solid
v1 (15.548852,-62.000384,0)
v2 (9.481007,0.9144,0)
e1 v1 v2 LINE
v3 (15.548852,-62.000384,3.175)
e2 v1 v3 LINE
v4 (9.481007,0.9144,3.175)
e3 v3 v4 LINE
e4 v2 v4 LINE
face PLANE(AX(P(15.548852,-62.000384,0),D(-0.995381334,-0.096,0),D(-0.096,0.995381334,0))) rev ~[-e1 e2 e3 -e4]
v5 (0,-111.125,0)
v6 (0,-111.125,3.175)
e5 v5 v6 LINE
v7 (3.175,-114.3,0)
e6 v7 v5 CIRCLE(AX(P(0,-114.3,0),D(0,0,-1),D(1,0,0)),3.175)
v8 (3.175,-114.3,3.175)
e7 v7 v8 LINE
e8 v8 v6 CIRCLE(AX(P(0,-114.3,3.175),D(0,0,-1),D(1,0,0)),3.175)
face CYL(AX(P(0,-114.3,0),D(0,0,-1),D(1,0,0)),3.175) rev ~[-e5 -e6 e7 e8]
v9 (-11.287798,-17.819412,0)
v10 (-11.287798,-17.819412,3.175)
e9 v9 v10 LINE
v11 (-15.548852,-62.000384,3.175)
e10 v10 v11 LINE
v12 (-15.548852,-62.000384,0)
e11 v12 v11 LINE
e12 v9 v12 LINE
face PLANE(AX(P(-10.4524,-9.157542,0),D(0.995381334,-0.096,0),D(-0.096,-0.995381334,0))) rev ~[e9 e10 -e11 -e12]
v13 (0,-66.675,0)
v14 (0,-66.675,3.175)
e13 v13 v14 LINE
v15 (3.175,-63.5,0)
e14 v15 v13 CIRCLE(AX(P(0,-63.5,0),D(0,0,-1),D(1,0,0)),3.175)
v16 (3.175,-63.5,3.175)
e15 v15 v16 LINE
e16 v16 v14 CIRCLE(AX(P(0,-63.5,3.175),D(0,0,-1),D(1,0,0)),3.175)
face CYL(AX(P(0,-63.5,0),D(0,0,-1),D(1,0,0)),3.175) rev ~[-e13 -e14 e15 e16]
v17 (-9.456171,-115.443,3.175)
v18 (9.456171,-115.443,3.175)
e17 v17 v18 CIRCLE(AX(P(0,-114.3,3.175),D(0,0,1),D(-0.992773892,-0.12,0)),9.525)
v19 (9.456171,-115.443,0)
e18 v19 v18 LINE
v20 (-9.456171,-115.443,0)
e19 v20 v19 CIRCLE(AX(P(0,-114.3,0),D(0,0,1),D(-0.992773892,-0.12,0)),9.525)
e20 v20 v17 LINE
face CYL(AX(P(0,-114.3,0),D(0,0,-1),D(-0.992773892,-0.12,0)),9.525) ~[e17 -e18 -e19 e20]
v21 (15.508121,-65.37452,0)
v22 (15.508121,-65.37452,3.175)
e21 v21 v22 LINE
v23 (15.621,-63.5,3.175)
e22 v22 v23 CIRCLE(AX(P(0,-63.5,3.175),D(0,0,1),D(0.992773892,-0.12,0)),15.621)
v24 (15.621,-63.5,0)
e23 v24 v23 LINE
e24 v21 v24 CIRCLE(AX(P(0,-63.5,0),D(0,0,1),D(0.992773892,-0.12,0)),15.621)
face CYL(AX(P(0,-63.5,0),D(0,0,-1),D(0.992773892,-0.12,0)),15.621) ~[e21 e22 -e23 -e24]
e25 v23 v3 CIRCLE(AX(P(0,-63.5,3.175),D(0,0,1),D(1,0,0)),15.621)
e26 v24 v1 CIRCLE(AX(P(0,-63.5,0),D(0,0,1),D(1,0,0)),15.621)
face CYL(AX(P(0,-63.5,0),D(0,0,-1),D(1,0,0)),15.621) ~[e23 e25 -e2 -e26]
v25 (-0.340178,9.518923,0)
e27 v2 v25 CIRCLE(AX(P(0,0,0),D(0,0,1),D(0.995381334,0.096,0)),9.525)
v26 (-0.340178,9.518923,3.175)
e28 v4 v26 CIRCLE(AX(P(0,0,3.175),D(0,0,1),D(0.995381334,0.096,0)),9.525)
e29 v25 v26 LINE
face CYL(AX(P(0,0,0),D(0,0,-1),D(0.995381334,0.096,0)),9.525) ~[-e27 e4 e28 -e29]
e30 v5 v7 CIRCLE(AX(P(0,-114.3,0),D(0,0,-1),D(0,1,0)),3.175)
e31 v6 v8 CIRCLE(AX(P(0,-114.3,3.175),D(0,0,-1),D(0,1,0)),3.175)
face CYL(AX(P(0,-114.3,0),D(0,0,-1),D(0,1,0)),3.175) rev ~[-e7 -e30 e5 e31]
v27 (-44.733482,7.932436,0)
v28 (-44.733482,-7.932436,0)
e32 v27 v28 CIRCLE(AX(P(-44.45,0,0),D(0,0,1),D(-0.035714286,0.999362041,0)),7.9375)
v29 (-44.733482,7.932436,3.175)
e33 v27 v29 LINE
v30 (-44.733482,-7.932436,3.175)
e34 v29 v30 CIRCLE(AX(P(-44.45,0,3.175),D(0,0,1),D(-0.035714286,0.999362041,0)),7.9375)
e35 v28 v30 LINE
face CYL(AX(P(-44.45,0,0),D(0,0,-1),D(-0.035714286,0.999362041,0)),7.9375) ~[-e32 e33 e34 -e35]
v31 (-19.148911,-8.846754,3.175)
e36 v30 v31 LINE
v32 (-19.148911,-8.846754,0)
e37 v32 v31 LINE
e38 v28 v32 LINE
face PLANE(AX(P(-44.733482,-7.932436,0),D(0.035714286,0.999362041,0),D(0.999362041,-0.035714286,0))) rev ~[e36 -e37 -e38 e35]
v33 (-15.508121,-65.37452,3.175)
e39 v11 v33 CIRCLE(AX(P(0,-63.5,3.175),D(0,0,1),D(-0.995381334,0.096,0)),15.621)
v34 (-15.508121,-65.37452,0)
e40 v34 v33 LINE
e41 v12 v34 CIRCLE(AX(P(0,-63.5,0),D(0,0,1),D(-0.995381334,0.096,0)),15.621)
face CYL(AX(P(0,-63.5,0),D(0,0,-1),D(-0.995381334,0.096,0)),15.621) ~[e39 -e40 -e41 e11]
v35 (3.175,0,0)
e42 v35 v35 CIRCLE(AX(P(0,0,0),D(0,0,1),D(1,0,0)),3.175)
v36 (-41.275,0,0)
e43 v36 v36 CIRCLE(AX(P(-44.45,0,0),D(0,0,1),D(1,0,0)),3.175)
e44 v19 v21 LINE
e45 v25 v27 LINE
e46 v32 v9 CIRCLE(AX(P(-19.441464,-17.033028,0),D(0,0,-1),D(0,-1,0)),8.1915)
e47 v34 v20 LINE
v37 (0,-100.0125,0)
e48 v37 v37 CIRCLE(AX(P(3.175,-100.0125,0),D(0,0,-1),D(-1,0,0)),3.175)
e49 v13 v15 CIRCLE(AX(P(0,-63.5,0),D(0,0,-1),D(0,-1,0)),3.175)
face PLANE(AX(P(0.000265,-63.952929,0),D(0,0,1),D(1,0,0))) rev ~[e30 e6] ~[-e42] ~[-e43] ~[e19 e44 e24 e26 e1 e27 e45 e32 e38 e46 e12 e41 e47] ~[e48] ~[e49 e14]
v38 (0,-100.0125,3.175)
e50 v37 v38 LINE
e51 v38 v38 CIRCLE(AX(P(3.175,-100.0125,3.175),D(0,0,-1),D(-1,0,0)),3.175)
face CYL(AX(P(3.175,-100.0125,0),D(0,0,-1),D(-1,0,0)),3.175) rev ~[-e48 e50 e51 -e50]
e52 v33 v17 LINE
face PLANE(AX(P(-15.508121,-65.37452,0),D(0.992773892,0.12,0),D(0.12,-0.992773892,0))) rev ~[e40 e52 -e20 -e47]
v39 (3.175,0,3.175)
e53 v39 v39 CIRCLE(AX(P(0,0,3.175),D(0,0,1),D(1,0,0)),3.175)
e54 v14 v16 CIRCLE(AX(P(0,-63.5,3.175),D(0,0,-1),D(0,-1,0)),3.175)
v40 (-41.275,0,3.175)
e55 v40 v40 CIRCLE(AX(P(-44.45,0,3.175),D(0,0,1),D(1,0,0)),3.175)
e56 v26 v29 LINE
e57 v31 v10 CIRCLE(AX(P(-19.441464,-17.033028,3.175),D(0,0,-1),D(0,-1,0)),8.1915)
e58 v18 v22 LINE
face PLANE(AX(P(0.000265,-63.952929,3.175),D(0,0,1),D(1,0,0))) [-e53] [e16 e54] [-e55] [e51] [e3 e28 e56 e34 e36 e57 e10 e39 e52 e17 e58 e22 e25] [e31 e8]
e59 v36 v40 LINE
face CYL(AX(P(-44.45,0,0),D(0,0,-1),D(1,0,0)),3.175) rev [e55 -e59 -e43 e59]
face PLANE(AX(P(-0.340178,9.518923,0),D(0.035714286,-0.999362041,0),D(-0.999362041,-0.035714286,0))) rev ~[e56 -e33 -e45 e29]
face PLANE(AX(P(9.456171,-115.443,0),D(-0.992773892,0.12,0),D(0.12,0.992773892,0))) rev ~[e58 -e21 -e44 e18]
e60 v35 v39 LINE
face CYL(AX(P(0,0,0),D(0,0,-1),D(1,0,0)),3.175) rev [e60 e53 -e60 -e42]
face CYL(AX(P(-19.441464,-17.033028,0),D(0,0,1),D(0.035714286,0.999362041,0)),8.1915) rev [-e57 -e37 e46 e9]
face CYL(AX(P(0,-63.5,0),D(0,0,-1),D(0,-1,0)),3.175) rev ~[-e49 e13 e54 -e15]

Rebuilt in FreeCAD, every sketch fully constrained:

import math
import FreeCAD as App
import Part
import Sketcher
Q = App.Units.Quantity


def edges_at(feature, points):
    """Names of the edges that pass closest to the given points."""
    edges = feature.Shape.Edges
    near = lambda p: min(range(len(edges)), key=lambda i: edges[i].distToShape(Part.Vertex(*p))[0])
    return sorted({f"Edge{near(p) + 1}" for p in points})

doc = App.newDocument("Part")
params = doc.addObject("Spreadsheet::Sheet", "Params")
for row, (alias, value) in enumerate([
    ("sketch1_diameter", "0.25 in"),
    ("sketch1_radius", "0.615 in"),
    ("sketch1_radius2", "0.375 in"),
    ("sketch1_radius3", "0.3125 in"),
    ("pad1_length", "0.125 in"),
    ("fillet_radius", "0.3225 in"),
], start=1):
    params.set(f"A{row}", alias)
    params.set(f"B{row}", "=" + value)
    params.setAlias(f"B{row}", alias)

body = doc.addObject("PartDesign::Body", "Body")

sketch1 = doc.addObject("Sketcher::SketchObject", "Sketch")
body.addObject(sketch1)
sketch1.AttachmentSupport = (doc.XY_Plane, [""])
sketch1.MapMode = "FlatFace"
sketch1.addGeometry(Part.ArcOfCircle(Part.Circle(App.Vector(0, -63.5, 0), App.Vector(0, 0, 1), 15.6), math.radians(0), math.radians(5.51)), False)
sketch1.addGeometry(Part.LineSegment(App.Vector(15.5, -62, 0), App.Vector(9.5, 0.9, 0)), False)
sketch1.addGeometry(Part.ArcOfCircle(Part.Circle(App.Vector(0, 0, 0), App.Vector(0, 0, 1), 9.5), math.radians(6), math.radians(92)), False)
sketch1.addGeometry(Part.LineSegment(App.Vector(-0.3, 9.5, 0), App.Vector(-44.7, 7.9, 0)), False)
sketch1.addGeometry(Part.ArcOfCircle(Part.Circle(App.Vector(-44.5, 0, 0), App.Vector(0, 0, 1), 7.9), math.radians(92), math.radians(268)), False)
sketch1.addGeometry(Part.LineSegment(App.Vector(-44.7, -7.9, 0), App.Vector(-10.5, -9.2, 0)), False)
sketch1.addGeometry(Part.LineSegment(App.Vector(-10.5, -9.2, 0), App.Vector(-15.5, -62, 0)), False)
sketch1.addGeometry(Part.ArcOfCircle(Part.Circle(App.Vector(0, -63.5, 0), App.Vector(0, 0, 1), 15.6), math.radians(174.49), math.radians(186.89)), False)
sketch1.addGeometry(Part.LineSegment(App.Vector(-15.5, -65.4, 0), App.Vector(-9.5, -115.4, 0)), False)
sketch1.addGeometry(Part.ArcOfCircle(Part.Circle(App.Vector(0, -114.3, 0), App.Vector(0, 0, 1), 9.5), math.radians(-173), math.radians(-7)), False)
sketch1.addGeometry(Part.LineSegment(App.Vector(9.5, -115.4, 0), App.Vector(15.5, -65.4, 0)), False)
sketch1.addGeometry(Part.ArcOfCircle(Part.Circle(App.Vector(0, -63.5, 0), App.Vector(0, 0, 1), 15.6), math.radians(-6.89), math.radians(0)), False)
sketch1.addGeometry(Part.ArcOfCircle(Part.Circle(App.Vector(0, -114.3, 0), App.Vector(0, 0, 1), 3.2), math.radians(0), math.radians(90)), False)
sketch1.addGeometry(Part.ArcOfCircle(Part.Circle(App.Vector(0, -114.3, 0), App.Vector(0, 0, 1), 3.2), math.radians(90), math.radians(360)), False)
sketch1.addGeometry(Part.Circle(App.Vector(3.2, -100, 0), App.Vector(0, 0, 1), 3.2), False)
sketch1.addGeometry(Part.ArcOfCircle(Part.Circle(App.Vector(0, -63.5, 0), App.Vector(0, 0, 1), 3.2), math.radians(-90), math.radians(0)), False)
sketch1.addGeometry(Part.ArcOfCircle(Part.Circle(App.Vector(0, -63.5, 0), App.Vector(0, 0, 1), 3.2), math.radians(0), math.radians(270)), False)
sketch1.addGeometry(Part.Circle(App.Vector(-44.5, 0, 0), App.Vector(0, 0, 1), 3.2), False)
sketch1.addGeometry(Part.Circle(App.Vector(0, 0, 0), App.Vector(0, 0, 1), 3.2), False)
sketch1.addConstraint(Sketcher.Constraint("Tangent", 0, 2, 1, 1))
sketch1.addConstraint(Sketcher.Constraint("Tangent", 1, 2, 2, 1))
sketch1.addConstraint(Sketcher.Constraint("Tangent", 2, 2, 3, 1))
sketch1.addConstraint(Sketcher.Constraint("Tangent", 3, 2, 4, 1))
sketch1.addConstraint(Sketcher.Constraint("Tangent", 4, 2, 5, 1))
sketch1.addConstraint(Sketcher.Constraint("Coincident", 5, 2, 6, 1))
sketch1.addConstraint(Sketcher.Constraint("Tangent", 6, 2, 7, 1))
sketch1.addConstraint(Sketcher.Constraint("Tangent", 7, 2, 8, 1))
sketch1.addConstraint(Sketcher.Constraint("Tangent", 8, 2, 9, 1))
sketch1.addConstraint(Sketcher.Constraint("Tangent", 9, 2, 10, 1))
sketch1.addConstraint(Sketcher.Constraint("Tangent", 10, 2, 11, 1))
sketch1.addConstraint(Sketcher.Constraint("Tangent", 11, 2, 0, 1))
sketch1.addConstraint(Sketcher.Constraint("Tangent", 12, 1, 13, 2))
sketch1.addConstraint(Sketcher.Constraint("Coincident", 13, 1, 12, 2))
sketch1.addConstraint(Sketcher.Constraint("Tangent", 15, 1, 16, 2))
sketch1.addConstraint(Sketcher.Constraint("Coincident", 16, 1, 15, 2))
sketch1.addConstraint(Sketcher.Constraint("Coincident", 2, 3, -1, 1))
sketch1.addConstraint(Sketcher.Constraint("Coincident", 18, 3, -1, 1))
sketch1.addConstraint(Sketcher.Constraint("Coincident", 7, 3, 0, 3))
sketch1.addConstraint(Sketcher.Constraint("Coincident", 12, 3, 9, 3))
sketch1.addConstraint(Sketcher.Constraint("Coincident", 15, 3, 0, 3))
sketch1.addConstraint(Sketcher.Constraint("Coincident", 17, 3, 4, 3))
sketch1.addConstraint(Sketcher.Constraint("Equal", 0, 7))
sketch1.addConstraint(Sketcher.Constraint("Equal", 2, 9))
sketch1.addConstraint(Sketcher.Constraint("Equal", 7, 11))
sketch1.addConstraint(Sketcher.Constraint("Equal", 13, 14))
sketch1.addConstraint(Sketcher.Constraint("Equal", 14, 15))
sketch1.addConstraint(Sketcher.Constraint("Equal", 16, 17))
sketch1.addConstraint(Sketcher.Constraint("Equal", 17, 18))
sketch1.addConstraint(Sketcher.Constraint("Symmetric", 0, 2, 6, 2, -2))
sketch1.addConstraint(Sketcher.Constraint("Symmetric", 3, 2, 4, 2, -1))
sketch1.addConstraint(Sketcher.Constraint("PointOnObject", 9, 3, -2))
sketch1.addConstraint(Sketcher.Constraint("PointOnObject", 13, 1, -2))
sketch1.addConstraint(Sketcher.Constraint("PointOnObject", 15, 1, -2))
sketch1.addConstraint(Sketcher.Constraint("Horizontal", 16, 3, 11, 2))
sketch1.addConstraint(Sketcher.Constraint("Horizontal", 13, 3, 12, 1))
sketch1.addConstraint(Sketcher.Constraint("Horizontal", 11, 2, 16, 1))
sketch1.addConstraint(Sketcher.Constraint("Vertical", 14, 3, 12, 1))
sketch1.addConstraint(Sketcher.Constraint("Diameter", 14, Q("0.25 in")))
sketch1.addConstraint(Sketcher.Constraint("Radius", 0, Q("0.615 in")))
sketch1.addConstraint(Sketcher.Constraint("Radius", 2, Q("0.375 in")))
sketch1.addConstraint(Sketcher.Constraint("Radius", 4, Q("0.3125 in")))
sketch1.addConstraint(Sketcher.Constraint("DistanceY", 9, 3, 0, 3, Q("2 in")))
sketch1.addConstraint(Sketcher.Constraint("DistanceY", 0, 3, -1, 1, Q("2.5 in")))
sketch1.addConstraint(Sketcher.Constraint("DistanceX", 4, 3, -1, 1, Q("1.75 in")))
sketch1.addConstraint(Sketcher.Constraint("DistanceY", 14, 3, -1, 1, Q("3.9375 in")))
sketch1.setExpression("Constraints[38]", "Params.sketch1_diameter")
sketch1.setExpression("Constraints[39]", "Params.sketch1_radius")
sketch1.setExpression("Constraints[40]", "Params.sketch1_radius2")
sketch1.setExpression("Constraints[41]", "Params.sketch1_radius3")
pad1 = doc.addObject("PartDesign::Pad", "Pad")
body.addObject(pad1)
pad1.Profile = sketch1
pad1.setExpression("Length", "Params.pad1_length")
doc.recompute()

fillet = doc.addObject("PartDesign::Fillet", "Fillet")
body.addObject(fillet)
fillet.Base = (pad1, edges_at(pad1, [(-10.452, -9.158, 1.587)]))
fillet.setExpression("Radius", "Params.fillet_radius")

doc.recompute()
